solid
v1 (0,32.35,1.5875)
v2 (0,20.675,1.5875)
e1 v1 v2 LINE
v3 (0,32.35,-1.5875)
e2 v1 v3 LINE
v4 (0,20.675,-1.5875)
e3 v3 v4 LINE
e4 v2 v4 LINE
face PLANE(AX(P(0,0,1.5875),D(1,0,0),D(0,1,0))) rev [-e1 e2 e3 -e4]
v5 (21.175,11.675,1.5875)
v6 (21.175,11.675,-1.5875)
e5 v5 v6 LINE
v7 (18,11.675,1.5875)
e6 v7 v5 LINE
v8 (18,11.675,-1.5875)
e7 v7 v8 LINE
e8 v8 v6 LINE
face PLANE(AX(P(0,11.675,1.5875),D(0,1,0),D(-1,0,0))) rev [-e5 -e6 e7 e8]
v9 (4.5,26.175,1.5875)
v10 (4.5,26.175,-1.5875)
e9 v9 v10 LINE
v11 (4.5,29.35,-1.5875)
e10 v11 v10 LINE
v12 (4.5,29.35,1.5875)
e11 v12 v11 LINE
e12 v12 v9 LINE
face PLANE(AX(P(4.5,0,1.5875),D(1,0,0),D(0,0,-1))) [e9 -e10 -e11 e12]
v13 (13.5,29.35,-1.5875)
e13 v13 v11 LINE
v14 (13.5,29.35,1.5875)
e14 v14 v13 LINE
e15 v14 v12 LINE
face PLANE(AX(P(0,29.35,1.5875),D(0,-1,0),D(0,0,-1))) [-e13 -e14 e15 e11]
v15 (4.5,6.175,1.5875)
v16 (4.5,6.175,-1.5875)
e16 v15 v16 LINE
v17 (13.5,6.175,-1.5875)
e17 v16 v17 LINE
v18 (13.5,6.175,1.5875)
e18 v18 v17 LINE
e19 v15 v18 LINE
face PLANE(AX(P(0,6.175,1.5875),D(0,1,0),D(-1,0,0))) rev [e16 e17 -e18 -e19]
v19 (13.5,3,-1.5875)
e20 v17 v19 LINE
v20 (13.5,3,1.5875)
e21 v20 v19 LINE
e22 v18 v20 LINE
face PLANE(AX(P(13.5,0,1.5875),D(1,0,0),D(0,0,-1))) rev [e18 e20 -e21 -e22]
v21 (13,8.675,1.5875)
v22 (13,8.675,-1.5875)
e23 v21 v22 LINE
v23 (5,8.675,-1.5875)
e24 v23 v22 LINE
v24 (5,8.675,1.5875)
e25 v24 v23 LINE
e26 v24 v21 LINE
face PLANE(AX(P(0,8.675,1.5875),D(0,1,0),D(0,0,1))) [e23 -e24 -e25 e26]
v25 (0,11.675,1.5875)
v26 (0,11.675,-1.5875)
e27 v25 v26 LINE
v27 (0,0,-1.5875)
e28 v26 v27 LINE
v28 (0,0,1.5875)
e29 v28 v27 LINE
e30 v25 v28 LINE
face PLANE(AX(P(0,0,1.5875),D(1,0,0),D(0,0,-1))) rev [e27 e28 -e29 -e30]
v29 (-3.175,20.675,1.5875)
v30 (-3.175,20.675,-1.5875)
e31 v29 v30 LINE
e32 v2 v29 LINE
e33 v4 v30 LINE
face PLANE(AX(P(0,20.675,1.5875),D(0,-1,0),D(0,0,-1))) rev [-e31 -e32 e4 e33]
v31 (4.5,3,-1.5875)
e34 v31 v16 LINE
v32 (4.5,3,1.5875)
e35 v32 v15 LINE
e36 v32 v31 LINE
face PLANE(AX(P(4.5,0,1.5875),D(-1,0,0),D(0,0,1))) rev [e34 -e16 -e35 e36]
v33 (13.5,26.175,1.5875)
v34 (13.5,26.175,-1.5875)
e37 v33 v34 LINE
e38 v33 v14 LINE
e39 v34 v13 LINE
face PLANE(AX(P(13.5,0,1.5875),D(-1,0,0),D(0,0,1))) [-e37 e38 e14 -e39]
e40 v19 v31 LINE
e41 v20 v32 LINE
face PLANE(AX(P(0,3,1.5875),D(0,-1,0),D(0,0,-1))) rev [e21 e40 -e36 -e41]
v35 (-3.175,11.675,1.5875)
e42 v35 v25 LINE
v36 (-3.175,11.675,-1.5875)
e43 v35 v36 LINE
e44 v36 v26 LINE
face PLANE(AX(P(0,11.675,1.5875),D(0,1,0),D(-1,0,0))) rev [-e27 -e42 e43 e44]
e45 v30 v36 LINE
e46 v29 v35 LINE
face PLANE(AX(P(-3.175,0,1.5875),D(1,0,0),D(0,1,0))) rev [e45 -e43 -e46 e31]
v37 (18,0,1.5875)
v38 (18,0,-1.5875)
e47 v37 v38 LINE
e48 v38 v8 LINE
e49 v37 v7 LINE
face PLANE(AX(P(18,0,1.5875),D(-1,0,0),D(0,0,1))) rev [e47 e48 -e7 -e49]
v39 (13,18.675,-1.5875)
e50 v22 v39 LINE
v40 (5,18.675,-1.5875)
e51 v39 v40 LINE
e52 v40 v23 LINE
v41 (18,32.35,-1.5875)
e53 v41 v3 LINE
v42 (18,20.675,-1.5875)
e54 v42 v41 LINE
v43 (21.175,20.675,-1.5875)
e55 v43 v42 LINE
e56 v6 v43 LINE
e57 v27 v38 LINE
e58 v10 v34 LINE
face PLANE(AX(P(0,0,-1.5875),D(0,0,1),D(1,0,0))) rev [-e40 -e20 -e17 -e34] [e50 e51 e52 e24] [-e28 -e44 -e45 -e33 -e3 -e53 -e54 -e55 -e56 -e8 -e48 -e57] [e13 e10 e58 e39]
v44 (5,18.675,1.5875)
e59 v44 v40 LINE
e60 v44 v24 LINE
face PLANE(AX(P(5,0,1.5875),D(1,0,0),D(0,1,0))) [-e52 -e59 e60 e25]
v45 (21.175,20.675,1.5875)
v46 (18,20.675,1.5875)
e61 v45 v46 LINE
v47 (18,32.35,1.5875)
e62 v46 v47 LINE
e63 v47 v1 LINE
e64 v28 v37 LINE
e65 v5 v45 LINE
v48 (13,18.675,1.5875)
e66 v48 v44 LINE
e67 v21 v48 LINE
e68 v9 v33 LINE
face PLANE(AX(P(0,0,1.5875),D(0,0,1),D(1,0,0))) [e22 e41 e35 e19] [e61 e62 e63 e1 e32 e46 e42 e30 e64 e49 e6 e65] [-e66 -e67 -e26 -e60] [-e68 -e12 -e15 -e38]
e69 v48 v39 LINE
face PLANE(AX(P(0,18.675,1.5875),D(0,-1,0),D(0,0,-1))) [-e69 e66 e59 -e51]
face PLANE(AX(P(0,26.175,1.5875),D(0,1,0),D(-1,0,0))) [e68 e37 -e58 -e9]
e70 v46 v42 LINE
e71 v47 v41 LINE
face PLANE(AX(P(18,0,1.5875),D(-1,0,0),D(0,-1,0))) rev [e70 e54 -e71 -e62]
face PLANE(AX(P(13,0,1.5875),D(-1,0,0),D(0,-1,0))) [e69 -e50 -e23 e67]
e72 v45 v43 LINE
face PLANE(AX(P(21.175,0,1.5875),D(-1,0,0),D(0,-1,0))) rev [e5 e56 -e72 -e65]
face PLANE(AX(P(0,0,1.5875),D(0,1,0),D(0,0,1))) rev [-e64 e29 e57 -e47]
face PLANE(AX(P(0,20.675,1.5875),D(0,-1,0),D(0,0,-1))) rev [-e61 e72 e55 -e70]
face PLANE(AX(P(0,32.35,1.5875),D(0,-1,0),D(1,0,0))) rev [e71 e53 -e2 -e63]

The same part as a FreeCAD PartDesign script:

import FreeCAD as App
import Part
import Sketcher

doc = App.newDocument("Part")
body = doc.addObject("PartDesign::Body", "Body")

sketch1 = body.newObject("Sketcher::SketchObject", "Sketch")
sketch1.AttachmentSupport = (doc.getObject("XY_Plane"), [""])
sketch1.MapMode = "FlatFace"
sketch1.addGeometry(Part.LineSegment(App.Vector(0, 0, 0), App.Vector(18, 0, 0)), False)
sketch1.addGeometry(Part.LineSegment(App.Vector(18, 0, 0), App.Vector(18, 11.7, 0)), False)
sketch1.addGeometry(Part.LineSegment(App.Vector(18, 11.7, 0), App.Vector(21.2, 11.7, 0)), False)
sketch1.addGeometry(Part.LineSegment(App.Vector(21.2, 11.7, 0), App.Vector(21.2, 20.7, 0)), False)
sketch1.addGeometry(Part.LineSegment(App.Vector(21.2, 20.7, 0), App.Vector(18, 20.7, 0)), False)
sketch1.addGeometry(Part.LineSegment(App.Vector(18, 20.7, 0), App.Vector(18, 32.4, 0)), False)
sketch1.addGeometry(Part.LineSegment(App.Vector(18, 32.4, 0), App.Vector(0, 32.4, 0)), False)
sketch1.addGeometry(Part.LineSegment(App.Vector(0, 32.4, 0), App.Vector(0, 20.7, 0)), False)
sketch1.addGeometry(Part.LineSegment(App.Vector(0, 20.7, 0), App.Vector(-3.2, 20.7, 0)), False)
sketch1.addGeometry(Part.LineSegment(App.Vector(-3.2, 20.7, 0), App.Vector(-3.2, 11.7, 0)), False)
sketch1.addGeometry(Part.LineSegment(App.Vector(-3.2, 11.7, 0), App.Vector(0, 11.7, 0)), False)
sketch1.addGeometry(Part.LineSegment(App.Vector(0, 11.7, 0), App.Vector(0, 0, 0)), False)
sketch1.addGeometry(Part.LineSegment(App.Vector(13.5, 6.2, 0), App.Vector(13.5, 3, 0)), False)
sketch1.addGeometry(Part.LineSegment(App.Vector(13.5, 3, 0), App.Vector(4.5, 3, 0)), False)
sketch1.addGeometry(Part.LineSegment(App.Vector(4.5, 3, 0), App.Vector(4.5, 6.2, 0)), False)
sketch1.addGeometry(Part.LineSegment(App.Vector(4.5, 6.2, 0), App.Vector(13.5, 6.2, 0)), False)
sketch1.addGeometry(Part.LineSegment(App.Vector(13, 8.7, 0), App.Vector(5, 8.7, 0)), False)
sketch1.addGeometry(Part.LineSegment(App.Vector(5, 8.7, 0), App.Vector(5, 18.7, 0)), False)
sketch1.addGeometry(Part.LineSegment(App.Vector(5, 18.7, 0), App.Vector(13, 18.7, 0)), False)
sketch1.addGeometry(Part.LineSegment(App.Vector(13, 18.7, 0), App.Vector(13, 8.7, 0)), False)
sketch1.addGeometry(Part.LineSegment(App.Vector(4.5, 29.4, 0), App.Vector(13.5, 29.4, 0)), False)
sketch1.addGeometry(Part.LineSegment(App.Vector(13.5, 29.4, 0), App.Vector(13.5, 26.2, 0)), False)
sketch1.addGeometry(Part.LineSegment(App.Vector(13.5, 26.2, 0), App.Vector(4.5, 26.2, 0)), False)
sketch1.addGeometry(Part.LineSegment(App.Vector(4.5, 26.2, 0), App.Vector(4.5, 29.4, 0)), False)
sketch1.addConstraint(Sketcher.Constraint("Coincident", 0, 2, 1, 1))
sketch1.addConstraint(Sketcher.Constraint("Coincident", 1, 2, 2, 1))
sketch1.addConstraint(Sketcher.Constraint("Coincident", 2, 2, 3, 1))
sketch1.addConstraint(Sketcher.Constraint("Coincident", 3, 2, 4, 1))
sketch1.addConstraint(Sketcher.Constraint("Coincident", 4, 2, 5, 1))
sketch1.addConstraint(Sketcher.Constraint("Coincident", 5, 2, 6, 1))
sketch1.addConstraint(Sketcher.Constraint("Coincident", 6, 2, 7, 1))
sketch1.addConstraint(Sketcher.Constraint("Coincident", 7, 2, 8, 1))
sketch1.addConstraint(Sketcher.Constraint("Coincident", 8, 2, 9, 1))
sketch1.addConstraint(Sketcher.Constraint("Coincident", 9, 2, 10, 1))
sketch1.addConstraint(Sketcher.Constraint("Coincident", 10, 2, 11, 1))
sketch1.addConstraint(Sketcher.Constraint("Coincident", 11, 2, 0, 1))
sketch1.addConstraint(Sketcher.Constraint("Coincident", 12, 2, 13, 1))
sketch1.addConstraint(Sketcher.Constraint("Coincident", 13, 2, 14, 1))
sketch1.addConstraint(Sketcher.Constraint("Coincident", 14, 2, 15, 1))
sketch1.addConstraint(Sketcher.Constraint("Coincident", 15, 2, 12, 1))
sketch1.addConstraint(Sketcher.Constraint("Coincident", 16, 2, 17, 1))
sketch1.addConstraint(Sketcher.Constraint("Coincident", 17, 2, 18, 1))
sketch1.addConstraint(Sketcher.Constraint("Coincident", 18, 2, 19, 1))
sketch1.addConstraint(Sketcher.Constraint("Coincident", 19, 2, 16, 1))
sketch1.addConstraint(Sketcher.Constraint("Coincident", 20, 2, 21, 1))
sketch1.addConstraint(Sketcher.Constraint("Coincident", 21, 2, 22, 1))
sketch1.addConstraint(Sketcher.Constraint("Coincident", 22, 2, 23, 1))
sketch1.addConstraint(Sketcher.Constraint("Coincident", 23, 2, 20, 1))
sketch1.addConstraint(Sketcher.Constraint("Horizontal", 0))
sketch1.addConstraint(Sketcher.Constraint("Vertical", 1))
sketch1.addConstraint(Sketcher.Constraint("Horizontal", 2))
sketch1.addConstraint(Sketcher.Constraint("Vertical", 3))
sketch1.addConstraint(Sketcher.Constraint("Horizontal", 4))
sketch1.addConstraint(Sketcher.Constraint("Vertical", 5))
sketch1.addConstraint(Sketcher.Constraint("Horizontal", 6))
sketch1.addConstraint(Sketcher.Constraint("Vertical", 7))
sketch1.addConstraint(Sketcher.Constraint("Horizontal", 8))
sketch1.addConstraint(Sketcher.Constraint("Vertical", 9))
sketch1.addConstraint(Sketcher.Constraint("Horizontal", 10))
sketch1.addConstraint(Sketcher.Constraint("Vertical", 11))
sketch1.addConstraint(Sketcher.Constraint("Vertical", 12))
sketch1.addConstraint(Sketcher.Constraint("Horizontal", 13))
sketch1.addConstraint(Sketcher.Constraint("Vertical", 14))
sketch1.addConstraint(Sketcher.Constraint("Horizontal", 15))
sketch1.addConstraint(Sketcher.Constraint("Horizontal", 16))
sketch1.addConstraint(Sketcher.Constraint("Vertical", 17))
sketch1.addConstraint(Sketcher.Constraint("Horizontal", 18))
sketch1.addConstraint(Sketcher.Constraint("Vertical", 19))
sketch1.addConstraint(Sketcher.Constraint("Horizontal", 20))
sketch1.addConstraint(Sketcher.Constraint("Vertical", 21))
sketch1.addConstraint(Sketcher.Constraint("Horizontal", 22))
sketch1.addConstraint(Sketcher.Constraint("Vertical", 23))
sketch1.addConstraint(Sketcher.Constraint("Coincident", 11, 2, -1, 1))
sketch1.addConstraint(Sketcher.Constraint("PointOnObject", 6, 2, -2))
sketch1.addConstraint(Sketcher.Constraint("Horizontal", 4, 2, 7, 2))
sketch1.addConstraint(Sketcher.Constraint("Horizontal", 2, 2, 9, 2))
sketch1.addConstraint(Sketcher.Constraint("Vertical", 1, 2, 4, 2))
sketch1.addConstraint(Sketcher.Constraint("Vertical", 15, 2, 20, 2))
sketch1.addConstraint(Sketcher.Constraint("Vertical", 14, 2, 22, 2))
sketch1.addConstraint(Sketcher.Constraint("Equal", 4, 8))
sketch1.addConstraint(Sketcher.Constraint("Equal", 22, 3))
sketch1.addConstraint(Sketcher.Constraint("Equal", 1, 5))
sketch1.addConstraint(Sketcher.Constraint("Equal", 10, 12))
sketch1.addConstraint(Sketcher.Constraint("Equal", 14, 21))
sketch1.addConstraint(Sketcher.Constraint("DistanceX", 0, 1, 0, 2, 18.0))
sketch1.addConstraint(Sketcher.Constraint("DistanceX", 13, 2, 13, 1, 9.0))
sketch1.addConstraint(Sketcher.Constraint("DistanceX", 16, 2, 16, 1, 8.0))
sketch1.addConstraint(Sketcher.Constraint("DistanceY", 17, 1, 17, 2, 10.0))
sketch1.addConstraint(Sketcher.Constraint("DistanceY", -1, 1, 12, 2, 3.0))
sketch1.addConstraint(Sketcher.Constraint("DistanceX", -1, 1, 16, 2, 5.0))
sketch1.addConstraint(Sketcher.Constraint("DistanceY", 16, 2, 10, 2, 3.0))
sketch1.addConstraint(Sketcher.Constraint("DistanceY", 20, 2, 5, 2, 3.0))
sketch1.addConstraint(Sketcher.Constraint("DistanceX", -1, 1, 12, 2, 13.5))
sketch1.addConstraint(Sketcher.Constraint("DistanceY", 14, 2, 10, 2, 5.5))
sketch1.addConstraint(Sketcher.Constraint("DistanceX", 2, 1, 2, 2, 3.175))
pad1 = body.newObject("PartDesign::Pad", "Pad")
pad1.Profile = sketch1
pad1.Length = 3.175
pad1.Midplane = True

doc.recompute()
